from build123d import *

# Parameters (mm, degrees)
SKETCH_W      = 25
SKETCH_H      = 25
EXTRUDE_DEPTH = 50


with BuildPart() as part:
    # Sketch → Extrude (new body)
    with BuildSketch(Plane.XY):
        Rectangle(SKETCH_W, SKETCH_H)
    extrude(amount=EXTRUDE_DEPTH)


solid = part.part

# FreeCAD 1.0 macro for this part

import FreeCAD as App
import Part
import Sketcher

V = App.Vector

doc = App.newDocument("Part")
body = doc.addObject("PartDesign::Body", "Body")

# Sketch on XY plane
sketch1 = doc.addObject("Sketcher::SketchObject", "Sketch")
body.addObject(sketch1)
sketch1.AttachmentSupport = (doc.XY_Plane, [""])
sketch1.MapMode = "FlatFace"
sketch1.addGeometry([
    Part.LineSegment(V(-12, 12, 0), V(-12, -12, 0)),
    Part.LineSegment(V(-12, -12, 0), V(12, -12, 0)),
    Part.LineSegment(V(12, -12, 0), V(12, 12, 0)),
    Part.LineSegment(V(12, 12, 0), V(-12, 12, 0)),
], False)
sketch1.addConstraint([
    Sketcher.Constraint("Coincident", 0, 2, 1, 1),
    Sketcher.Constraint("Coincident", 1, 2, 2, 1),
    Sketcher.Constraint("Coincident", 2, 2, 3, 1),
    Sketcher.Constraint("Coincident", 3, 2, 0, 1),
    Sketcher.Constraint("Vertical", 0),
    Sketcher.Constraint("Horizontal", 1),
    Sketcher.Constraint("Vertical", 2),
    Sketcher.Constraint("Horizontal", 3),
    Sketcher.Constraint("Symmetric", 0, 2, 2, 2, -1, 1),
    Sketcher.Constraint("Equal", 3, 0),
    Sketcher.Constraint("DistanceX", 1, 1, 1, 2, 25.0),
])
pad1 = doc.addObject("PartDesign::Pad", "Pad")
body.addObject(pad1)
pad1.Profile = sketch1
pad1.Length = 50

doc.recompute()
